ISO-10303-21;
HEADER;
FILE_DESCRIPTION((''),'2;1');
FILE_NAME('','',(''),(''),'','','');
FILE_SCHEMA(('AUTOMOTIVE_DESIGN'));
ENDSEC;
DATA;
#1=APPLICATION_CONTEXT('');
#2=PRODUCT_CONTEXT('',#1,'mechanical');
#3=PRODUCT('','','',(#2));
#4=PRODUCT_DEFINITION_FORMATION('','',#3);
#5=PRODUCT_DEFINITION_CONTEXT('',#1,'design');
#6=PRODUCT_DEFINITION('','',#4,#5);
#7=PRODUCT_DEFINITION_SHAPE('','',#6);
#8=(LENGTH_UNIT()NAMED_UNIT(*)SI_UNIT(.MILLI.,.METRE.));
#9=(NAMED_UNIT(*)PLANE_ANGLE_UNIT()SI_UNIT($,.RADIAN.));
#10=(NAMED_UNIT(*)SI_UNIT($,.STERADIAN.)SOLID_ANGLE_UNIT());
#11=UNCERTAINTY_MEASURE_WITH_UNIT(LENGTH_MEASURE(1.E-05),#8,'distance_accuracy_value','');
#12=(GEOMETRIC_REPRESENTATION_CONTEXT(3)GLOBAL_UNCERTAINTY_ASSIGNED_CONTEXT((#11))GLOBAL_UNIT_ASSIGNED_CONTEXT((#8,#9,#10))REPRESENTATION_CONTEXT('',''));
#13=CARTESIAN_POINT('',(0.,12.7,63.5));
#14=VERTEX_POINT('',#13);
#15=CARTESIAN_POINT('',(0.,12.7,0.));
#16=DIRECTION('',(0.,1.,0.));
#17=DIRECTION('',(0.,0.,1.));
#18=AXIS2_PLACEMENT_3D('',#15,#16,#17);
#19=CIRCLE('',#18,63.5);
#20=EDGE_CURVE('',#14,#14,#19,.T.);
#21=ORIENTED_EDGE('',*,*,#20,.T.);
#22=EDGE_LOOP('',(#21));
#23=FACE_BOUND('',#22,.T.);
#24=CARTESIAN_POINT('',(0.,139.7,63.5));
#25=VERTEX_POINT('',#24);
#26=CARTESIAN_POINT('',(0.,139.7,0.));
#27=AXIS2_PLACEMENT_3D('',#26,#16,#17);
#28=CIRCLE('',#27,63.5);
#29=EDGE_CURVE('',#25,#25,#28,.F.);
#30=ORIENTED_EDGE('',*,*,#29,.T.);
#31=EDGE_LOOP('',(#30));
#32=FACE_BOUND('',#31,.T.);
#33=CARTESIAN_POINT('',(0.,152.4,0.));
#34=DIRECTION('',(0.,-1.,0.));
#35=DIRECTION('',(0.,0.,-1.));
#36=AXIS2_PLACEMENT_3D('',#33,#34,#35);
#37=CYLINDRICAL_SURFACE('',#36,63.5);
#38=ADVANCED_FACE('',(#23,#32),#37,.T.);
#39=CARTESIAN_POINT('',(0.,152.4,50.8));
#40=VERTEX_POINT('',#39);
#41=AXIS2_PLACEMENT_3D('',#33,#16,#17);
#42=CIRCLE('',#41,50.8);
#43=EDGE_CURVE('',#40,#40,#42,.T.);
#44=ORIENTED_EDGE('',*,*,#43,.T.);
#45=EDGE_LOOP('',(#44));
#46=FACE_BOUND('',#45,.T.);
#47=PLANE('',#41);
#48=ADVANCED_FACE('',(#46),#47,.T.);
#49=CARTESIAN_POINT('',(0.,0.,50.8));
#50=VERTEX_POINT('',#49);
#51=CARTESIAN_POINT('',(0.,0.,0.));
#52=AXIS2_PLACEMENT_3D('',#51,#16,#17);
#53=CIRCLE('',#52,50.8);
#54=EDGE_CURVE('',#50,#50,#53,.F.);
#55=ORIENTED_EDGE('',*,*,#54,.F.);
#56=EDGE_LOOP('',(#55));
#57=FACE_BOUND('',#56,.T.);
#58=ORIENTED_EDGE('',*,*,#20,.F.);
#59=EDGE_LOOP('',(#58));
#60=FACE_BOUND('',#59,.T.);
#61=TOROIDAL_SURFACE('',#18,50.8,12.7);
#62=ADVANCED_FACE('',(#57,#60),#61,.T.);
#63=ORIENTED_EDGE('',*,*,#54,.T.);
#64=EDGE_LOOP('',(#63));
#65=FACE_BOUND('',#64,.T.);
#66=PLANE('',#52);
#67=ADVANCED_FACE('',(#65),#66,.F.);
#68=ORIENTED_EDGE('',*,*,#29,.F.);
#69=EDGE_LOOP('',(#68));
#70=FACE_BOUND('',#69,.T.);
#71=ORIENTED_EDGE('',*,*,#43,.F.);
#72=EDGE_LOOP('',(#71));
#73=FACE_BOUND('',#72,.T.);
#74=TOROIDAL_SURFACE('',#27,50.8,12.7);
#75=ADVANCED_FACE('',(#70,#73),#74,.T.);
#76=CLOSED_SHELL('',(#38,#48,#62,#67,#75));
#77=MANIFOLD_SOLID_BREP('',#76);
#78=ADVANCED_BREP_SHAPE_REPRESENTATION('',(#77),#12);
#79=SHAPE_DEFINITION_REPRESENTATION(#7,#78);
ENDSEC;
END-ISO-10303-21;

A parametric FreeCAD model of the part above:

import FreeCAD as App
import Part
import Sketcher
Q = App.Units.Quantity


def edges_at(feature, points):
    """Names of the edges that pass closest to the given points."""
    edges = feature.Shape.Edges
    near = lambda p: min(range(len(edges)), key=lambda i: edges[i].distToShape(Part.Vertex(*p))[0])
    return sorted({f"Edge{near(p) + 1}" for p in points})

doc = App.newDocument("Part")
body = doc.addObject("PartDesign::Body", "Body")

sketch1 = doc.addObject("Sketcher::SketchObject", "Sketch")
body.addObject(sketch1)
sketch1.AttachmentSupport = (doc.XZ_Plane, [""])
sketch1.MapMode = "FlatFace"
sketch1.addGeometry(Part.Circle(App.Vector(0, 0, 0), App.Vector(0, 0, 1), 63.5), False)
sketch1.addConstraint(Sketcher.Constraint("Coincident", 0, 3, -1, 1))
sketch1.addConstraint(Sketcher.Constraint("Diameter", 0, Q("5 in")))
pad1 = doc.addObject("PartDesign::Pad", "Pad")
body.addObject(pad1)
pad1.Profile = sketch1
pad1.Length = Q("6 in")
pad1.Reversed = True
doc.recompute()

fillet = doc.addObject("PartDesign::Fillet", "Fillet")
body.addObject(fillet)
fillet.Base = (pad1, edges_at(pad1, [(-63.5, 0, 0), (-63.5, 152.4, 0)]))
fillet.Radius = Q("0.5 in")

doc.recompute()
